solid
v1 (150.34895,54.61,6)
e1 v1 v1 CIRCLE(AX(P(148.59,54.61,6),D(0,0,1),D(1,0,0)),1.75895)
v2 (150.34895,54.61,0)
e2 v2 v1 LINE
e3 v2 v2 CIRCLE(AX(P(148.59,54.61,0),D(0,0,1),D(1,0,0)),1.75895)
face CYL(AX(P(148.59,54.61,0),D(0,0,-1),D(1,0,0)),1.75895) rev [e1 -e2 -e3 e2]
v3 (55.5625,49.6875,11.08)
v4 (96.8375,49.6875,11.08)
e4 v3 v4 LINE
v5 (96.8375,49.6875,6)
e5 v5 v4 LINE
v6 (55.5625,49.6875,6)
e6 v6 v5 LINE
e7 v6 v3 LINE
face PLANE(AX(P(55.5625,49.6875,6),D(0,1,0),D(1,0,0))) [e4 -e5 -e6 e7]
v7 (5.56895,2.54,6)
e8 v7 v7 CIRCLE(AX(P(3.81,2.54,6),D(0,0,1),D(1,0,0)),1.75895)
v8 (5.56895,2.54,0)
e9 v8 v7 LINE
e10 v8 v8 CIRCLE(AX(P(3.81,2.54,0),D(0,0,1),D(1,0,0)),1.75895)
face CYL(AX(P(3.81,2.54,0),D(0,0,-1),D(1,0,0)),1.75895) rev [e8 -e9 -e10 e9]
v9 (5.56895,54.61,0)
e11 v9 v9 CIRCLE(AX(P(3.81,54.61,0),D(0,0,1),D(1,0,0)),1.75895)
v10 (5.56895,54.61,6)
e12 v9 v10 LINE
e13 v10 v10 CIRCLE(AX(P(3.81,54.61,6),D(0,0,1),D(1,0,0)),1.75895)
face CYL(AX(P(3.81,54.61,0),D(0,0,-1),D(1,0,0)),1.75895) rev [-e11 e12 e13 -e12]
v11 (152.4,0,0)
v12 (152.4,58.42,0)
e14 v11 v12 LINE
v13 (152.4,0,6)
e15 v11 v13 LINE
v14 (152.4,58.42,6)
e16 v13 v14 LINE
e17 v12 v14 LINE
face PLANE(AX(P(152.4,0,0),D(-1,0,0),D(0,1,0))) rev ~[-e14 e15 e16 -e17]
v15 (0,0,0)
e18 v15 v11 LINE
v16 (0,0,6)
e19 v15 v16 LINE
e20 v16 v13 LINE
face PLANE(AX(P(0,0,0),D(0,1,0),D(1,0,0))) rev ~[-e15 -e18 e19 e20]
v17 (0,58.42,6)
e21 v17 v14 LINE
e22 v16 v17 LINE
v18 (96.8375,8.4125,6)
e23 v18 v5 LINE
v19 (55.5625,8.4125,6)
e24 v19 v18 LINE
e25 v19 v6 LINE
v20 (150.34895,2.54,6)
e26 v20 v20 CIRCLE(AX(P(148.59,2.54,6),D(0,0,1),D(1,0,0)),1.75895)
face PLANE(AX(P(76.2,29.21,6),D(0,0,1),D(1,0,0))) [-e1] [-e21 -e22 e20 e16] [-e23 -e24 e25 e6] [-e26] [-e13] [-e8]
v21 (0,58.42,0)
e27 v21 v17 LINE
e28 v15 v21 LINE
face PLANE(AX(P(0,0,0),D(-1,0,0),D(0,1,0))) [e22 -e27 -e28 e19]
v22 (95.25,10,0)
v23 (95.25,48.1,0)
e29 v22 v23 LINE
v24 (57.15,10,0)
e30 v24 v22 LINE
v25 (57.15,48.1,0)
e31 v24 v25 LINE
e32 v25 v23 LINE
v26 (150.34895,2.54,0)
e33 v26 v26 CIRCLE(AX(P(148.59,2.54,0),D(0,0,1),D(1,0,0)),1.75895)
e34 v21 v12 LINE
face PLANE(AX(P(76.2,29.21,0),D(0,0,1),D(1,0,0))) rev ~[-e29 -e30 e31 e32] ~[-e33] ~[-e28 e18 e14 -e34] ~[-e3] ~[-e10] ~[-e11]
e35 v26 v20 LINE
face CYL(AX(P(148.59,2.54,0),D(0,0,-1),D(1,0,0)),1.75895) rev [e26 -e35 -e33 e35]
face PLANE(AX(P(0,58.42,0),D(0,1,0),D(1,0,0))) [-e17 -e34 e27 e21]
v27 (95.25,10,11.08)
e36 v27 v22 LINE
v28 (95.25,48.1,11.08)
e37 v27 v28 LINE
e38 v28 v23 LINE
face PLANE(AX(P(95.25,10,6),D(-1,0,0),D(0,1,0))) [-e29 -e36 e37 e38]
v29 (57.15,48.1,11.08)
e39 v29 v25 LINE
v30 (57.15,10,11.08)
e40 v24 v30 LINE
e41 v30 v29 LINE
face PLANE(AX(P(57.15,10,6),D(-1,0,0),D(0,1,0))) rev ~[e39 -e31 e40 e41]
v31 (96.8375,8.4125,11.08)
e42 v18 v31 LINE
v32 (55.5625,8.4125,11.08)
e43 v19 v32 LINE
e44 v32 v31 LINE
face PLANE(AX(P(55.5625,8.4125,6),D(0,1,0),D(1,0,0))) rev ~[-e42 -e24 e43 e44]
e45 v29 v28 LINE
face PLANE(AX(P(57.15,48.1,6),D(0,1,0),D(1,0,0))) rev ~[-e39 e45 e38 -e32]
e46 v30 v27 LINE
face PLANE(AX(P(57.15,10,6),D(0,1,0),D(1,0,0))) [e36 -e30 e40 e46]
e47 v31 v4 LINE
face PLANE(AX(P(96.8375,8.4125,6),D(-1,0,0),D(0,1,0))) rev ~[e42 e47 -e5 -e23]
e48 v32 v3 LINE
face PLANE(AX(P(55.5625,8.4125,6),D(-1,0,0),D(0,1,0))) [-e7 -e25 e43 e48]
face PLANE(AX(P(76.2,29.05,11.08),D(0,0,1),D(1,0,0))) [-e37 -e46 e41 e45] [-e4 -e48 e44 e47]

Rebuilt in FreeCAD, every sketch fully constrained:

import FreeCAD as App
import Part
import Sketcher
Q = App.Units.Quantity

doc = App.newDocument("Part")
body = doc.addObject("PartDesign::Body", "Body")

sketch1 = body.newObject("Sketcher::SketchObject", "Sketch")
sketch1.AttachmentSupport = (doc.getObject("XY_Plane"), [""])
sketch1.MapMode = "FlatFace"
sketch1.addGeometry(Part.LineSegment(App.Vector(0, 58.4, 0), App.Vector(0, 0, 0)), False)
sketch1.addGeometry(Part.LineSegment(App.Vector(0, 0, 0), App.Vector(152.4, 0, 0)), False)
sketch1.addGeometry(Part.LineSegment(App.Vector(152.4, 0, 0), App.Vector(152.4, 58.4, 0)), False)
sketch1.addGeometry(Part.LineSegment(App.Vector(152.4, 58.4, 0), App.Vector(0, 58.4, 0)), False)
sketch1.addGeometry(Part.Circle(App.Vector(3.8, 2.5, 0), App.Vector(0, 0, 1), 1.8), False)
sketch1.addGeometry(Part.Circle(App.Vector(148.6, 2.5, 0), App.Vector(0, 0, 1), 1.8), False)
sketch1.addGeometry(Part.Circle(App.Vector(3.8, 54.6, 0), App.Vector(0, 0, 1), 1.8), False)
sketch1.addGeometry(Part.LineSegment(App.Vector(95.2, 10, 0), App.Vector(57.1, 10, 0)), False)
sketch1.addGeometry(Part.LineSegment(App.Vector(57.1, 10, 0), App.Vector(57.1, 48.1, 0)), False)
sketch1.addGeometry(Part.LineSegment(App.Vector(57.1, 48.1, 0), App.Vector(95.2, 48.1, 0)), False)
sketch1.addGeometry(Part.LineSegment(App.Vector(95.2, 48.1, 0), App.Vector(95.2, 10, 0)), False)
sketch1.addGeometry(Part.Circle(App.Vector(148.6, 54.6, 0), App.Vector(0, 0, 1), 1.8), False)
sketch1.addConstraint(Sketcher.Constraint("Coincident", 0, 2, 1, 1))
sketch1.addConstraint(Sketcher.Constraint("Coincident", 1, 2, 2, 1))
sketch1.addConstraint(Sketcher.Constraint("Coincident", 2, 2, 3, 1))
sketch1.addConstraint(Sketcher.Constraint("Coincident", 3, 2, 0, 1))
sketch1.addConstraint(Sketcher.Constraint("Coincident", 7, 2, 8, 1))
sketch1.addConstraint(Sketcher.Constraint("Coincident", 8, 2, 9, 1))
sketch1.addConstraint(Sketcher.Constraint("Coincident", 9, 2, 10, 1))
sketch1.addConstraint(Sketcher.Constraint("Coincident", 10, 2, 7, 1))
sketch1.addConstraint(Sketcher.Constraint("Vertical", 0))
sketch1.addConstraint(Sketcher.Constraint("Horizontal", 1))
sketch1.addConstraint(Sketcher.Constraint("Vertical", 2))
sketch1.addConstraint(Sketcher.Constraint("Horizontal", 3))
sketch1.addConstraint(Sketcher.Constraint("Horizontal", 7))
sketch1.addConstraint(Sketcher.Constraint("Vertical", 8))
sketch1.addConstraint(Sketcher.Constraint("Horizontal", 9))
sketch1.addConstraint(Sketcher.Constraint("Vertical", 10))
sketch1.addConstraint(Sketcher.Constraint("Coincident", 0, 2, -1, 1))
sketch1.addConstraint(Sketcher.Constraint("Equal", 4, 5))
sketch1.addConstraint(Sketcher.Constraint("Equal", 5, 6))
sketch1.addConstraint(Sketcher.Constraint("Equal", 6, 11))
sketch1.addConstraint(Sketcher.Constraint("Horizontal", 4, 3, 5, 3))
sketch1.addConstraint(Sketcher.Constraint("Horizontal", 6, 3, 11, 3))
sketch1.addConstraint(Sketcher.Constraint("Vertical", 4, 3, 6, 3))
sketch1.addConstraint(Sketcher.Constraint("Vertical", 5, 3, 11, 3))
sketch1.addConstraint(Sketcher.Constraint("Equal", 9, 8))
sketch1.addConstraint(Sketcher.Constraint("DistanceX", 1, 1, 1, 2, Q("6 in")))
sketch1.addConstraint(Sketcher.Constraint("DistanceX", 7, 2, 7, 1, Q("1.5 in")))
sketch1.addConstraint(Sketcher.Constraint("DistanceY", 0, 2, 0, 1, Q("2.3 in")))
sketch1.addConstraint(Sketcher.Constraint("Diameter", 4, Q("0.1385 in")))
sketch1.addConstraint(Sketcher.Constraint("DistanceY", -1, 1, 4, 3, Q("0.1 in")))
sketch1.addConstraint(Sketcher.Constraint("DistanceX", 4, 3, 5, 3, Q("5.7 in")))
sketch1.addConstraint(Sketcher.Constraint("DistanceX", 4, 3, 7, 2, Q("2.1 in")))
sketch1.addConstraint(Sketcher.Constraint("DistanceX", -1, 1, 4, 3, Q("0.15 in")))
sketch1.addConstraint(Sketcher.Constraint("DistanceY", -1, 1, 6, 3, Q("2.15 in")))
sketch1.addConstraint(Sketcher.Constraint("DistanceY", -1, 1, 7, 2, 10.0))
pad1 = body.newObject("PartDesign::Pad", "Pad")
pad1.Profile = sketch1
pad1.Length = 6

sketch2 = body.newObject("Sketcher::SketchObject", "Sketch001")
sketch2.AttachmentSupport = (doc.getObject("XY_Plane"), [""])
sketch2.MapMode = "FlatFace"
sketch2.AttachmentOffset = App.Placement(App.Vector(0, 0, 6), App.Rotation())
sketch2.addGeometry(Part.LineSegment(App.Vector(56, 50, 0), App.Vector(56, 8, 0)), False)
sketch2.addGeometry(Part.LineSegment(App.Vector(56, 8, 0), App.Vector(97, 8, 0)), False)
sketch2.addGeometry(Part.LineSegment(App.Vector(97, 8, 0), App.Vector(97, 50, 0)), False)
sketch2.addGeometry(Part.LineSegment(App.Vector(97, 50, 0), App.Vector(56, 50, 0)), False)
sketch2.addGeometry(Part.LineSegment(App.Vector(95, 10, 0), App.Vector(57, 10, 0)), False)
sketch2.addGeometry(Part.LineSegment(App.Vector(57, 10, 0), App.Vector(57, 48, 0)), False)
sketch2.addGeometry(Part.LineSegment(App.Vector(57, 48, 0), App.Vector(95, 48, 0)), False)
sketch2.addGeometry(Part.LineSegment(App.Vector(95, 48, 0), App.Vector(95, 10, 0)), False)
sketch2.addConstraint(Sketcher.Constraint("Coincident", 0, 2, 1, 1))
sketch2.addConstraint(Sketcher.Constraint("Coincident", 1, 2, 2, 1))
sketch2.addConstraint(Sketcher.Constraint("Coincident", 2, 2, 3, 1))
sketch2.addConstraint(Sketcher.Constraint("Coincident", 3, 2, 0, 1))
sketch2.addConstraint(Sketcher.Constraint("Coincident", 4, 2, 5, 1))
sketch2.addConstraint(Sketcher.Constraint("Coincident", 5, 2, 6, 1))
sketch2.addConstraint(Sketcher.Constraint("Coincident", 6, 2, 7, 1))
sketch2.addConstraint(Sketcher.Constraint("Coincident", 7, 2, 4, 1))
sketch2.addConstraint(Sketcher.Constraint("Vertical", 0))
sketch2.addConstraint(Sketcher.Constraint("Horizontal", 1))
sketch2.addConstraint(Sketcher.Constraint("Vertical", 2))
sketch2.addConstraint(Sketcher.Constraint("Horizontal", 3))
sketch2.addConstraint(Sketcher.Constraint("Horizontal", 4))
sketch2.addConstraint(Sketcher.Constraint("Vertical", 5))
sketch2.addConstraint(Sketcher.Constraint("Horizontal", 6))
sketch2.addConstraint(Sketcher.Constraint("Vertical", 7))
sketch2.addConstraint(Sketcher.Constraint("Equal", 3, 0))
sketch2.addConstraint(Sketcher.Constraint("Equal", 6, 5))
sketch2.addConstraint(Sketcher.Constraint("DistanceX", 4, 2, 4, 1, Q("1.5 in")))
sketch2.addConstraint(Sketcher.Constraint("DistanceX", 1, 1, 1, 2, Q("1.625 in")))
sketch2.addConstraint(Sketcher.Constraint("DistanceX", -1, 1, 4, 2, Q("2.25 in")))
sketch2.addConstraint(Sketcher.Constraint("DistanceX", -1, 1, 0, 2, Q("2.1875 in")))
sketch2.addConstraint(Sketcher.Constraint("DistanceY", 0, 2, 4, 2, Q("0.0625 in")))
sketch2.addConstraint(Sketcher.Constraint("DistanceY", -1, 1, 0, 2, 8.4125))
pad2 = body.newObject("PartDesign::Pad", "Pad001")
pad2.Profile = sketch2
pad2.Length = Q("0.2 in")

doc.recompute()
